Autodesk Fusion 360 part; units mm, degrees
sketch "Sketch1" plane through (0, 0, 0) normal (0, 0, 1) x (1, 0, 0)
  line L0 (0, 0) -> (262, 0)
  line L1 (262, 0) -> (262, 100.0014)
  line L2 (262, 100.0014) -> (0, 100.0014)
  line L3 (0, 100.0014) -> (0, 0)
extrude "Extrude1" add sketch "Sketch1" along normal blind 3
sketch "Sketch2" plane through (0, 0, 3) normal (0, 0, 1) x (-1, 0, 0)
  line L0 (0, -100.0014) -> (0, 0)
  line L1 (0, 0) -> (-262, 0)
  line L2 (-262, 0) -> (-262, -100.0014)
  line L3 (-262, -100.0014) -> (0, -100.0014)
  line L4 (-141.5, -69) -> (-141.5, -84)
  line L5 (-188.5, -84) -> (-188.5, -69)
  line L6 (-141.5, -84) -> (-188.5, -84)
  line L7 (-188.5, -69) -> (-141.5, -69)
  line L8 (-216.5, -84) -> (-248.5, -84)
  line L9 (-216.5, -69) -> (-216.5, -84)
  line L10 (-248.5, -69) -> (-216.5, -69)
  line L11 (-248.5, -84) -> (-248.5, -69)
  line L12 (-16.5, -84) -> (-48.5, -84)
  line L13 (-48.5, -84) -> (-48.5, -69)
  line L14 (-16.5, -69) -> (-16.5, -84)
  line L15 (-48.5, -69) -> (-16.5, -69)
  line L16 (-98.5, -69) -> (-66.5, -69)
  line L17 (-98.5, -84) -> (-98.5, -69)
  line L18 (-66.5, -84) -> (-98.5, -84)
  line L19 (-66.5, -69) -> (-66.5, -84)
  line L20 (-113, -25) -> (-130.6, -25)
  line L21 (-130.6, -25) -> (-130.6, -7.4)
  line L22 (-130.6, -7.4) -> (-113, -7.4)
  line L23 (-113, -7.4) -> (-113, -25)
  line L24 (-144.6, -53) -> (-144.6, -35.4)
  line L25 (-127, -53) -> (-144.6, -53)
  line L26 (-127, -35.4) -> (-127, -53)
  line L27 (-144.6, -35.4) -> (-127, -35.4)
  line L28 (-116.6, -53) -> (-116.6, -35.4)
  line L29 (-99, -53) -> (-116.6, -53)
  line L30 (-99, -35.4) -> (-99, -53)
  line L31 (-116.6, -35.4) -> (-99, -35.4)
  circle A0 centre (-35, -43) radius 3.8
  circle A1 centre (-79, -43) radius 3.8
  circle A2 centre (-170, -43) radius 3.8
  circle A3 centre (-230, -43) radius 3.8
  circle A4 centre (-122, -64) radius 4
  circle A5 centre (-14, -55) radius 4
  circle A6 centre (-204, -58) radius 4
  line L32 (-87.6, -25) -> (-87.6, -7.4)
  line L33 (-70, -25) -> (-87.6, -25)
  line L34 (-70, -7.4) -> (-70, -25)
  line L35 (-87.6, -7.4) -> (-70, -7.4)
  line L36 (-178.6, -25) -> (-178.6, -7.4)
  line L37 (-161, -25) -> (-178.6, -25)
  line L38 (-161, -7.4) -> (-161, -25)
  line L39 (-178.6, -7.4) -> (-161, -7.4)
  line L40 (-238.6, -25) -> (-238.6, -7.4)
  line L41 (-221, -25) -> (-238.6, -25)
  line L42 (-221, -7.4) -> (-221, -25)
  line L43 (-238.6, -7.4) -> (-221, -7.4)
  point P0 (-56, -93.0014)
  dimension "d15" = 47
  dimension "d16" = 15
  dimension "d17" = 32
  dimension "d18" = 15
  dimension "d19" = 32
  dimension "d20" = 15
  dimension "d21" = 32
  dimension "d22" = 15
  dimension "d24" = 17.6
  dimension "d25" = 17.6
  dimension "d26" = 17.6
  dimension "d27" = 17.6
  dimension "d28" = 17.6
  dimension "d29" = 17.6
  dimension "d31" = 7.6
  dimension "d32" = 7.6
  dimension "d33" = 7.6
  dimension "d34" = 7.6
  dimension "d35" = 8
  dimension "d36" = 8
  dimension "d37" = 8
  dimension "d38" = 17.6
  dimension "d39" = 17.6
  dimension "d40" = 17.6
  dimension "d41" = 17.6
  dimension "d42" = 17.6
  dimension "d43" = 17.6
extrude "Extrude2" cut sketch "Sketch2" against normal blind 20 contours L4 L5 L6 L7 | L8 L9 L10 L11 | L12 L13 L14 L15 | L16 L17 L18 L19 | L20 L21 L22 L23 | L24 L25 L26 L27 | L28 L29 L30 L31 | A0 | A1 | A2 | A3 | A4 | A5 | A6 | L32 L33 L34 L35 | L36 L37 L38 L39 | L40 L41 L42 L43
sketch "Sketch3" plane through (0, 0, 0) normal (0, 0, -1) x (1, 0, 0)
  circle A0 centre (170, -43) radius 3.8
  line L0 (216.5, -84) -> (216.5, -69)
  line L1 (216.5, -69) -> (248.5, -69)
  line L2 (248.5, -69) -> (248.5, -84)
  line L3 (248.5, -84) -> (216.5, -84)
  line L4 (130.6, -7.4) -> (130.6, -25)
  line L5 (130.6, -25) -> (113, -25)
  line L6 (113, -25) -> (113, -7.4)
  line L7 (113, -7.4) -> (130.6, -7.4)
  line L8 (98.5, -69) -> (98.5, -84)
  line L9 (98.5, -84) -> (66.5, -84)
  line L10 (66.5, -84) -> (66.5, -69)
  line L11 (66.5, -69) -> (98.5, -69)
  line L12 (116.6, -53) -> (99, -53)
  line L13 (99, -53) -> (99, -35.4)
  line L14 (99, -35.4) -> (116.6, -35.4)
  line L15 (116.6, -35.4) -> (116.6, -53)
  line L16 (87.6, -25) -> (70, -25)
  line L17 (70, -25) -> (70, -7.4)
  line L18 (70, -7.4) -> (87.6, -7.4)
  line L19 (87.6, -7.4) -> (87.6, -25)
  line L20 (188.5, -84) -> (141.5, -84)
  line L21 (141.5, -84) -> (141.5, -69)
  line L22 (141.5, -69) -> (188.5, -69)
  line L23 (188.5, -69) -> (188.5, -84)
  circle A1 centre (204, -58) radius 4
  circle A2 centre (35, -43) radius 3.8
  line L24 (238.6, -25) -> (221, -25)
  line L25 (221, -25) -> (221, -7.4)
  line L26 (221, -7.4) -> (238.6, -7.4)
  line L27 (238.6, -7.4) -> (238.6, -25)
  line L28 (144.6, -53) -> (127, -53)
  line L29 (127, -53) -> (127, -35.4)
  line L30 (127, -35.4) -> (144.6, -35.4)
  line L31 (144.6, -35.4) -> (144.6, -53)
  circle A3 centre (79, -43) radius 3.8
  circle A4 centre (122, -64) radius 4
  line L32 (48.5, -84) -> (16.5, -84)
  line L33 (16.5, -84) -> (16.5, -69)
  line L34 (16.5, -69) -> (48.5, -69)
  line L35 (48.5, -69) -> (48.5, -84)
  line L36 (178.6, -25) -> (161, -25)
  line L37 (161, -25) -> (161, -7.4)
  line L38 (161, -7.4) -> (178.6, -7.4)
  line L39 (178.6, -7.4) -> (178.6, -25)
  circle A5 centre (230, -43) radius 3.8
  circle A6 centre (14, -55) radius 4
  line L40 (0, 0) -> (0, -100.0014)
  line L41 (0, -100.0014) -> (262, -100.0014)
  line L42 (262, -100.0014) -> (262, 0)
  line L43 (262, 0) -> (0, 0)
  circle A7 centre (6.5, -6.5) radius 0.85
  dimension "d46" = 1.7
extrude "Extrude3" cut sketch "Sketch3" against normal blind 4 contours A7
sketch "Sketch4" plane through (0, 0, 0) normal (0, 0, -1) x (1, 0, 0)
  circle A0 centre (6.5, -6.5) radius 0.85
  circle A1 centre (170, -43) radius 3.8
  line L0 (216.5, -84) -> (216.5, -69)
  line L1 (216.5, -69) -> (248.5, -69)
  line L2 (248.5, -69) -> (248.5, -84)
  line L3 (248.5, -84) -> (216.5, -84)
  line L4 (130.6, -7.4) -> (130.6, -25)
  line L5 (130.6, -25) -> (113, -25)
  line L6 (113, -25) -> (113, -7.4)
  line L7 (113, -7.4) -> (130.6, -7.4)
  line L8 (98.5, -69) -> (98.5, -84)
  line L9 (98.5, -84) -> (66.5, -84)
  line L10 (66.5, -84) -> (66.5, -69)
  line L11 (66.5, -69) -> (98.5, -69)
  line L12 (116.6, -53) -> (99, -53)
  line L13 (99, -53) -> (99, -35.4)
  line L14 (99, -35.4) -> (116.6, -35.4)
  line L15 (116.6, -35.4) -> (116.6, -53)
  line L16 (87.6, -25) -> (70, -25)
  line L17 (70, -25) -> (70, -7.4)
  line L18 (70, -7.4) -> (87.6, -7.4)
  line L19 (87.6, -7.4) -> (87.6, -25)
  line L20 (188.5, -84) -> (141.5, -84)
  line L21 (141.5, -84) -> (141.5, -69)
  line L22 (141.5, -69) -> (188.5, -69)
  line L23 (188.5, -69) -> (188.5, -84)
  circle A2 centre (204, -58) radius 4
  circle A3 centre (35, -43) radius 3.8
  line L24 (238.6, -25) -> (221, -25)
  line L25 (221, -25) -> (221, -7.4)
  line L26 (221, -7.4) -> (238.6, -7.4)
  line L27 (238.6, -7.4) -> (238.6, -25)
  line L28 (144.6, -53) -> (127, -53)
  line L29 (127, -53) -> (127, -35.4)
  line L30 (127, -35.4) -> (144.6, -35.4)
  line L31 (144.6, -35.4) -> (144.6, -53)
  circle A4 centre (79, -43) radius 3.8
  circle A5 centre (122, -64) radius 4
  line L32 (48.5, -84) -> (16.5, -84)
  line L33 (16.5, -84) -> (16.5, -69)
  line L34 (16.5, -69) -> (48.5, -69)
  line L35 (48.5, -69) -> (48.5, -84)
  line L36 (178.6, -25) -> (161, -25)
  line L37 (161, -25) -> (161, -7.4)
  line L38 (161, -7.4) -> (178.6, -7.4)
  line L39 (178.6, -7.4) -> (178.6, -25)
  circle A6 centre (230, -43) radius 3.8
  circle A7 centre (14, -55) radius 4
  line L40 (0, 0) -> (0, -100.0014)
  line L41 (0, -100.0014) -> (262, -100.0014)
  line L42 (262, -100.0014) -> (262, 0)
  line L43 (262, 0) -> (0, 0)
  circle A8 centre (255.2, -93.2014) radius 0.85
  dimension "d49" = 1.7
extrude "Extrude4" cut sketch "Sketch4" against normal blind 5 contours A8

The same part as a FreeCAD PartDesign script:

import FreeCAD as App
import Part
import Sketcher

V = App.Vector


def add_polygon(sketch, points):
    """Adds a closed chain of lines whose ends are joined by coincident constraints."""
    first, n = sketch.GeometryCount, len(points)
    for a, b in zip(points, points[1:] + points[:1]):
        sketch.addGeometry(Part.LineSegment(App.Vector(*a, 0), App.Vector(*b, 0)), False)
    for i in range(n):
        sketch.addConstraint(Sketcher.Constraint("Coincident", first + i, 2, first + (i + 1) % n, 1))

doc = App.newDocument("Part")
body = doc.addObject("PartDesign::Body", "Body")

# Sketch on XY plane
sketch1 = doc.addObject("Sketcher::SketchObject", "Sketch")
body.addObject(sketch1)
sketch1.AttachmentSupport = (doc.XY_Plane, [""])
sketch1.MapMode = "FlatFace"
add_polygon(sketch1, [(0, 100), (0, 0), (262, 0), (262, 100)])  # lines 0-3
sketch1.addConstraint(Sketcher.Constraint("Vertical", 0))
sketch1.addConstraint(Sketcher.Constraint("Horizontal", 1))
sketch1.addConstraint(Sketcher.Constraint("Vertical", 2))
sketch1.addConstraint(Sketcher.Constraint("Horizontal", 3))
sketch1.addConstraint(Sketcher.Constraint("Coincident", 0, 2, -1, 1))
sketch1.addConstraint(Sketcher.Constraint("DistanceX", 1, 1, 1, 2, 262.0))
sketch1.addConstraint(Sketcher.Constraint("DistanceY", 0, 2, 0, 1, 100.0014))
pad1 = doc.addObject("PartDesign::Pad", "Pad")
body.addObject(pad1)
pad1.Profile = sketch1
pad1.Length = 3

# Sketch on XY plane
sketch2 = doc.addObject("Sketcher::SketchObject", "Sketch001")
body.addObject(sketch2)
sketch2.AttachmentSupport = (doc.XY_Plane, [""])
sketch2.MapMode = "FlatFace"
sketch2.AttachmentOffset = App.Placement(V(0, 0, 3), App.Rotation())
add_polygon(sketch2, [(141.5, 84), (141.5, 69), (188.5, 69), (188.5, 84)])  # lines 0-3
add_polygon(sketch2, [(248.5, 84), (216.5, 84), (216.5, 69), (248.5, 69)])  # lines 4-7
add_polygon(sketch2, [(48.5, 84), (16.5, 84), (16.5, 69), (48.5, 69)])  # lines 8-11
add_polygon(sketch2, [(66.5, 69), (98.5, 69), (98.5, 84), (66.5, 84)])  # lines 12-15
add_polygon(sketch2, [(130.6, 25), (113, 25), (113, 7.4), (130.6, 7.4)])  # lines 16-19
add_polygon(sketch2, [(144.6, 35.4), (144.6, 53), (127, 53), (127, 35.4)])  # lines 20-23
add_polygon(sketch2, [(116.6, 35.4), (116.6, 53), (99, 53), (99, 35.4)])  # lines 24-27
sketch2.addGeometry(Part.Circle(V(35, 43, 0), V(0, 0, 1), 3.8), False)  # 28
sketch2.addGeometry(Part.Circle(V(79, 43, 0), V(0, 0, 1), 3.8), False)  # 29
sketch2.addGeometry(Part.Circle(V(170, 43, 0), V(0, 0, 1), 3.8), False)  # 30
sketch2.addGeometry(Part.Circle(V(230, 43, 0), V(0, 0, 1), 3.8), False)  # 31
sketch2.addGeometry(Part.Circle(V(122, 64, 0), V(0, 0, 1), 4), False)  # 32
sketch2.addGeometry(Part.Circle(V(14, 55, 0), V(0, 0, 1), 4), False)  # 33
sketch2.addGeometry(Part.Circle(V(204, 58, 0), V(0, 0, 1), 4), False)  # 34
add_polygon(sketch2, [(87.6, 7.4), (87.6, 25), (70, 25), (70, 7.4)])  # lines 35-38
add_polygon(sketch2, [(178.6, 7.4), (178.6, 25), (161, 25), (161, 7.4)])  # lines 39-42
add_polygon(sketch2, [(238.6, 7.4), (238.6, 25), (221, 25), (221, 7.4)])  # lines 43-46
sketch2.addConstraint(Sketcher.Constraint("Vertical", 0))
sketch2.addConstraint(Sketcher.Constraint("Horizontal", 1))
sketch2.addConstraint(Sketcher.Constraint("Vertical", 2))
sketch2.addConstraint(Sketcher.Constraint("Horizontal", 3))
sketch2.addConstraint(Sketcher.Constraint("Horizontal", 4))
sketch2.addConstraint(Sketcher.Constraint("Vertical", 5))
sketch2.addConstraint(Sketcher.Constraint("Horizontal", 6))
sketch2.addConstraint(Sketcher.Constraint("Vertical", 7))
sketch2.addConstraint(Sketcher.Constraint("Horizontal", 8))
sketch2.addConstraint(Sketcher.Constraint("Vertical", 9))
sketch2.addConstraint(Sketcher.Constraint("Horizontal", 10))
sketch2.addConstraint(Sketcher.Constraint("Vertical", 11))
sketch2.addConstraint(Sketcher.Constraint("Horizontal", 12))
sketch2.addConstraint(Sketcher.Constraint("Vertical", 13))
sketch2.addConstraint(Sketcher.Constraint("Horizontal", 14))
sketch2.addConstraint(Sketcher.Constraint("Vertical", 15))
sketch2.addConstraint(Sketcher.Constraint("Horizontal", 16))
sketch2.addConstraint(Sketcher.Constraint("Vertical", 17))
sketch2.addConstraint(Sketcher.Constraint("Horizontal", 18))
sketch2.addConstraint(Sketcher.Constraint("Vertical", 19))
sketch2.addConstraint(Sketcher.Constraint("Vertical", 20))
sketch2.addConstraint(Sketcher.Constraint("Horizontal", 21))
sketch2.addConstraint(Sketcher.Constraint("Vertical", 22))
sketch2.addConstraint(Sketcher.Constraint("Horizontal", 23))
sketch2.addConstraint(Sketcher.Constraint("Vertical", 24))
sketch2.addConstraint(Sketcher.Constraint("Horizontal", 25))
sketch2.addConstraint(Sketcher.Constraint("Vertical", 26))
sketch2.addConstraint(Sketcher.Constraint("Horizontal", 27))
sketch2.addConstraint(Sketcher.Constraint("Vertical", 35))
sketch2.addConstraint(Sketcher.Constraint("Horizontal", 36))
sketch2.addConstraint(Sketcher.Constraint("Vertical", 37))
sketch2.addConstraint(Sketcher.Constraint("Horizontal", 38))
sketch2.addConstraint(Sketcher.Constraint("Vertical", 39))
sketch2.addConstraint(Sketcher.Constraint("Horizontal", 40))
sketch2.addConstraint(Sketcher.Constraint("Vertical", 41))
sketch2.addConstraint(Sketcher.Constraint("Horizontal", 42))
sketch2.addConstraint(Sketcher.Constraint("Vertical", 43))
sketch2.addConstraint(Sketcher.Constraint("Horizontal", 44))
sketch2.addConstraint(Sketcher.Constraint("Vertical", 45))
sketch2.addConstraint(Sketcher.Constraint("Horizontal", 46))
sketch2.addConstraint(Sketcher.Constraint("Equal", 28, 29))
sketch2.addConstraint(Sketcher.Constraint("Equal", 29, 30))
sketch2.addConstraint(Sketcher.Constraint("Equal", 30, 31))
sketch2.addConstraint(Sketcher.Constraint("Equal", 32, 33))
sketch2.addConstraint(Sketcher.Constraint("Equal", 33, 34))
sketch2.addConstraint(Sketcher.Constraint("Horizontal", 28, 3, 29, 3))
sketch2.addConstraint(Sketcher.Constraint("Horizontal", 29, 3, 30, 3))
sketch2.addConstraint(Sketcher.Constraint("Horizontal", 30, 3, 31, 3))
sketch2.addConstraint(Sketcher.Constraint("Horizontal", 3, 2, 4, 2))
sketch2.addConstraint(Sketcher.Constraint("Horizontal", 1, 2, 5, 2))
sketch2.addConstraint(Sketcher.Constraint("Horizontal", 7, 2, 8, 2))
sketch2.addConstraint(Sketcher.Constraint("Horizontal", 6, 2, 9, 2))
sketch2.addConstraint(Sketcher.Constraint("Horizontal", 10, 2, 12, 2))
sketch2.addConstraint(Sketcher.Constraint("Horizontal", 11, 2, 13, 2))
sketch2.addConstraint(Sketcher.Constraint("Horizontal", 21, 2, 24, 2))
sketch2.addConstraint(Sketcher.Constraint("Horizontal", 23, 2, 26, 2))
sketch2.addConstraint(Sketcher.Constraint("Horizontal", 19, 2, 35, 2))
sketch2.addConstraint(Sketcher.Constraint("Horizontal", 18, 2, 37, 2))
sketch2.addConstraint(Sketcher.Constraint("Horizontal", 36, 2, 39, 2))
sketch2.addConstraint(Sketcher.Constraint("Horizontal", 38, 2, 41, 2))
sketch2.addConstraint(Sketcher.Constraint("Horizontal", 40, 2, 43, 2))
sketch2.addConstraint(Sketcher.Constraint("Horizontal", 42, 2, 45, 2))
sketch2.addConstraint(Sketcher.Constraint("Equal", 6, 8))
sketch2.addConstraint(Sketcher.Constraint("Equal", 10, 12))
sketch2.addConstraint(Sketcher.Constraint("Equal", 18, 21))
sketch2.addConstraint(Sketcher.Constraint("Equal", 23, 25))
sketch2.addConstraint(Sketcher.Constraint("Equal", 27, 36))
sketch2.addConstraint(Sketcher.Constraint("Equal", 38, 40))
sketch2.addConstraint(Sketcher.Constraint("Equal", 42, 44))
sketch2.addConstraint(Sketcher.Constraint("Equal", 46, 17))
sketch2.addConstraint(Sketcher.Constraint("Equal", 19, 20))
sketch2.addConstraint(Sketcher.Constraint("Diameter", 32, 8.0))
sketch2.addConstraint(Sketcher.Constraint("Diameter", 28, 7.6))
sketch2.addConstraint(Sketcher.Constraint("DistanceX", 1, 1, 1, 2, 47.0))
sketch2.addConstraint(Sketcher.Constraint("DistanceX", 4, 2, 4, 1, 32.0))
sketch2.addConstraint(Sketcher.Constraint("DistanceY", 0, 2, 0, 1, 15.0))
sketch2.addConstraint(Sketcher.Constraint("DistanceX", 16, 2, 16, 1, 17.6))
sketch2.addConstraint(Sketcher.Constraint("DistanceY", 31, 3, 34, 3, 15.0))
sketch2.addConstraint(Sketcher.Constraint("DistanceY", 23, 2, 30, 3, 7.6))
sketch2.addConstraint(Sketcher.Constraint("DistanceX", -1, 1, 28, 3, 35.0))
sketch2.addConstraint(Sketcher.Constraint("DistanceY", -1, 1, 28, 3, 43.0))
sketch2.addConstraint(Sketcher.Constraint("DistanceX", -1, 1, 29, 3, 79.0))
sketch2.addConstraint(Sketcher.Constraint("DistanceX", -1, 1, 30, 3, 170.0))
sketch2.addConstraint(Sketcher.Constraint("DistanceX", -1, 1, 31, 3, 230.0))
sketch2.addConstraint(Sketcher.Constraint("DistanceX", -1, 1, 32, 3, 122.0))
sketch2.addConstraint(Sketcher.Constraint("DistanceY", -1, 1, 32, 3, 64.0))
sketch2.addConstraint(Sketcher.Constraint("DistanceX", -1, 1, 33, 3, 14.0))
sketch2.addConstraint(Sketcher.Constraint("DistanceY", -1, 1, 33, 3, 55.0))
sketch2.addConstraint(Sketcher.Constraint("DistanceX", -1, 1, 34, 3, 204.0))
sketch2.addConstraint(Sketcher.Constraint("DistanceY", -1, 1, 0, 2, 69.0))
sketch2.addConstraint(Sketcher.Constraint("DistanceX", -1, 1, 16, 2, 113.0))
sketch2.addConstraint(Sketcher.Constraint("DistanceY", -1, 1, 16, 2, 25.0))
sketch2.addConstraint(Sketcher.Constraint("DistanceX", -1, 1, 21, 2, 127.0))
sketch2.addConstraint(Sketcher.Constraint("DistanceX", -1, 1, 25, 2, 99.0))
sketch2.addConstraint(Sketcher.Constraint("DistanceX", -1, 1, 36, 2, 70.0))
sketch2.addConstraint(Sketcher.Constraint("DistanceX", -1, 1, 40, 2, 161.0))
sketch2.addConstraint(Sketcher.Constraint("DistanceX", -1, 1, 44, 2, 221.0))
sketch2.addConstraint(Sketcher.Constraint("DistanceX", 2, 2, 4, 2, 28.0))
sketch2.addConstraint(Sketcher.Constraint("DistanceX", 8, 2, 3, 2, 125.0))
sketch2.addConstraint(Sketcher.Constraint("DistanceX", 12, 2, 0, 2, 43.0))
sketch2.addConstraint(Sketcher.Constraint("DistanceX", -1, 1, 0, 2, 141.5))
pocket1 = doc.addObject("PartDesign::Pocket", "Pocket")
body.addObject(pocket1)
pocket1.Profile = sketch2
pocket1.Length = 20

# Sketch on XY plane
sketch3 = doc.addObject("Sketcher::SketchObject", "Sketch002")
body.addObject(sketch3)
sketch3.AttachmentSupport = (doc.XY_Plane, [""])
sketch3.MapMode = "FlatFace"
sketch3.addGeometry(Part.Circle(V(6.5, 6.5, 0), V(0, 0, 1), 0.8), False)
sketch3.addConstraint(Sketcher.Constraint("Diameter", 0, 1.7))
sketch3.addConstraint(Sketcher.Constraint("DistanceX", -1, 1, 0, 3, 6.5))
sketch3.addConstraint(Sketcher.Constraint("DistanceY", -1, 1, 0, 3, 6.5))
pocket2 = doc.addObject("PartDesign::Pocket", "Pocket001")
body.addObject(pocket2)
pocket2.Profile = sketch3
pocket2.Length = 4
pocket2.Reversed = True

# Sketch on XY plane
sketch4 = doc.addObject("Sketcher::SketchObject", "Sketch003")
body.addObject(sketch4)
sketch4.AttachmentSupport = (doc.XY_Plane, [""])
sketch4.MapMode = "FlatFace"
sketch4.addGeometry(Part.Circle(V(255.2, 93.2, 0), V(0, 0, 1), 0.8), False)
sketch4.addConstraint(Sketcher.Constraint("Diameter", 0, 1.7))
sketch4.addConstraint(Sketcher.Constraint("DistanceX", -1, 1, 0, 3, 255.2))
sketch4.addConstraint(Sketcher.Constraint("DistanceY", -1, 1, 0, 3, 93.2014))
pocket3 = doc.addObject("PartDesign::Pocket", "Pocket002")
body.addObject(pocket3)
pocket3.Profile = sketch4
pocket3.Length = 5
pocket3.Reversed = True

doc.recompute()
